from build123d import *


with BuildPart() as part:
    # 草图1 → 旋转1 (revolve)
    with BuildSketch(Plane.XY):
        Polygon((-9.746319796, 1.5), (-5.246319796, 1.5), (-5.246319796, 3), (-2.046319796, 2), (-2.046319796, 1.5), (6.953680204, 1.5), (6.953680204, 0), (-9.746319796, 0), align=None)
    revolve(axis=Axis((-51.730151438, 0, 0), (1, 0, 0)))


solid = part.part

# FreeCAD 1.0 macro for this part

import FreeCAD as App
import Part
import Sketcher

doc = App.newDocument("Part")
body = doc.addObject("PartDesign::Body", "Body")

sketch1 = body.newObject("Sketcher::SketchObject", "Sketch")
sketch1.AttachmentSupport = (doc.getObject("XY_Plane"), [""])
sketch1.MapMode = "FlatFace"
sketch1.addGeometry([
    Part.LineSegment(App.Vector(-5.2, 1.5, 0), App.Vector(-9.7, 1.5, 0)),
    Part.LineSegment(App.Vector(-9.7, 1.5, 0), App.Vector(-9.7, 0, 0)),
    Part.LineSegment(App.Vector(-9.7, 0, 0), App.Vector(7, 0, 0)),
    Part.LineSegment(App.Vector(7, 0, 0), App.Vector(7, 1.5, 0)),
    Part.LineSegment(App.Vector(7, 1.5, 0), App.Vector(-2, 1.5, 0)),
    Part.LineSegment(App.Vector(-2, 1.5, 0), App.Vector(-2, 2, 0)),
    Part.LineSegment(App.Vector(-2, 2, 0), App.Vector(-5.2, 3, 0)),
    Part.LineSegment(App.Vector(-5.2, 3, 0), App.Vector(-5.2, 1.5, 0)),
], False)
sketch1.addConstraint([
    Sketcher.Constraint("Coincident", 0, 2, 1, 1),
    Sketcher.Constraint("Coincident", 1, 2, 2, 1),
    Sketcher.Constraint("Coincident", 2, 2, 3, 1),
    Sketcher.Constraint("Coincident", 3, 2, 4, 1),
    Sketcher.Constraint("Coincident", 4, 2, 5, 1),
    Sketcher.Constraint("Coincident", 5, 2, 6, 1),
    Sketcher.Constraint("Coincident", 6, 2, 7, 1),
    Sketcher.Constraint("Coincident", 7, 2, 0, 1),
    Sketcher.Constraint("Horizontal", 0),
    Sketcher.Constraint("Vertical", 1),
    Sketcher.Constraint("Horizontal", 2),
    Sketcher.Constraint("Vertical", 3),
    Sketcher.Constraint("Horizontal", 4),
    Sketcher.Constraint("Vertical", 5),
    Sketcher.Constraint("Vertical", 7),
    Sketcher.Constraint("PointOnObject", 1, 2, -1),
    Sketcher.Constraint("Horizontal", 0, 2, 3, 2),
    Sketcher.Constraint("Equal", 3, 7),
    Sketcher.Constraint("DistanceX", 4, 2, 4, 1, 9.0),
    Sketcher.Constraint("DistanceX", 0, 2, 0, 1, 4.5),
    Sketcher.Constraint("DistanceX", 2, 1, 2, 2, 16.7),
    Sketcher.Constraint("DistanceY", 1, 2, 1, 1, 1.5),
    Sketcher.Constraint("DistanceY", 5, 1, 5, 2, 0.5),
    Sketcher.Constraint("DistanceX", 0, 2, -1, 1, 9.74632),
])
revolution = body.newObject("PartDesign::Revolution", "Revolution")
revolution.Profile = sketch1
revolution.ReferenceAxis = (sketch1, ["H_Axis"])
revolution.Angle = 360

doc.recompute()
